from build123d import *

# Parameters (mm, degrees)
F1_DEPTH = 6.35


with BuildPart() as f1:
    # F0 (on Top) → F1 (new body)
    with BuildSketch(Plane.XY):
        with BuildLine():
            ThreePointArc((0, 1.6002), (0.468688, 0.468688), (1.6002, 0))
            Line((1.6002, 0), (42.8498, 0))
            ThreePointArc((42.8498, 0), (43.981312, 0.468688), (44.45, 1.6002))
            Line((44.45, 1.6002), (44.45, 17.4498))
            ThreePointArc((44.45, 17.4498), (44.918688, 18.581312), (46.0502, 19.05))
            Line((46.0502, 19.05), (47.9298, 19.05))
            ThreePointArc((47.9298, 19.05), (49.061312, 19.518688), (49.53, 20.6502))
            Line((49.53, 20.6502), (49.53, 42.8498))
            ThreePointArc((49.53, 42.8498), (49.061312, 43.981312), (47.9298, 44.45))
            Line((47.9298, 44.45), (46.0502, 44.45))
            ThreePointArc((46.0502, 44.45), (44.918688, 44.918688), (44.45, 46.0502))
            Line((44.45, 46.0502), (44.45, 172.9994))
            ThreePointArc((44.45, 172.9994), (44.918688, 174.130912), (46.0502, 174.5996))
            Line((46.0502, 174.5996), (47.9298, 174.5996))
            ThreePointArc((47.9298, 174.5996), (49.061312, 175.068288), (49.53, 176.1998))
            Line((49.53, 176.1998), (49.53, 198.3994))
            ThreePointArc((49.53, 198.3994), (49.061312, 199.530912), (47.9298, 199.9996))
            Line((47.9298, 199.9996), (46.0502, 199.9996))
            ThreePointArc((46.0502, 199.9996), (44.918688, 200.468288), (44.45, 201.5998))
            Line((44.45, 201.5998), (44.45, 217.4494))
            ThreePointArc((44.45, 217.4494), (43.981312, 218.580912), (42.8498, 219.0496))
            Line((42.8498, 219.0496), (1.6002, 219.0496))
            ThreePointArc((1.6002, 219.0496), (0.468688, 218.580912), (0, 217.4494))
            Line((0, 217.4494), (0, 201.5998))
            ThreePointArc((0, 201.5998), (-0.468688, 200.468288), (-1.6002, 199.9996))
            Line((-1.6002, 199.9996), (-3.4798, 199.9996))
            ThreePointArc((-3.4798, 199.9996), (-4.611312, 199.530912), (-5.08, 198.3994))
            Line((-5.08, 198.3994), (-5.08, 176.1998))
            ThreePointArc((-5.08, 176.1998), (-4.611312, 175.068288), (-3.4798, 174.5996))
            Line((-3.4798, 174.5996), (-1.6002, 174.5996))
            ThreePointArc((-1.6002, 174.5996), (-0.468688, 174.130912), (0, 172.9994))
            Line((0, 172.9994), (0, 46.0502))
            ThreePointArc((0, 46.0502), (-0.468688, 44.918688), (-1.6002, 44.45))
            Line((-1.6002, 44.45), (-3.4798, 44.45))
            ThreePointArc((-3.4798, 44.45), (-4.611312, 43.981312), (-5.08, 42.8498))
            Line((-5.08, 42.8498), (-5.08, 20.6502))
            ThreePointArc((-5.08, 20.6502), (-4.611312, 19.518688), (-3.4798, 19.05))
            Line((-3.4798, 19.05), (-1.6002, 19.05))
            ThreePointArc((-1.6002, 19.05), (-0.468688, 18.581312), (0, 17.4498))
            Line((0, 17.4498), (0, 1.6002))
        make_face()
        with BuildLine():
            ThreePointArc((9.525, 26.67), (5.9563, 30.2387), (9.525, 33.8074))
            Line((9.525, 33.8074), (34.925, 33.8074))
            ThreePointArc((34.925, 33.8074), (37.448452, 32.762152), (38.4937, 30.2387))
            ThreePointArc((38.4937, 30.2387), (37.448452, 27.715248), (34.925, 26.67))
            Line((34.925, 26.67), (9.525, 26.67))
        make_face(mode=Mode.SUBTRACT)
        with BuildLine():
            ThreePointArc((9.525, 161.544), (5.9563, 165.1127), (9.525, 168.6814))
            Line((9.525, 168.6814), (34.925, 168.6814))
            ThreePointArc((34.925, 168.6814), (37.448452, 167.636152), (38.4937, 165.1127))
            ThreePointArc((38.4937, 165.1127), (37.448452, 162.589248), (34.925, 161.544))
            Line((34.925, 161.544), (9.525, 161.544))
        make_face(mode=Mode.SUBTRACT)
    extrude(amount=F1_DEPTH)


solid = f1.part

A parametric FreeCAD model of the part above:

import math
import FreeCAD as App
import Part
import Sketcher
from FreeCAD import Vector
Q = App.Units.Quantity

doc = App.newDocument("Part")
body = doc.addObject("PartDesign::Body", "Body")

# Sketch on XY plane
sketch1 = body.newObject("Sketcher::SketchObject", "Sketch")
sketch1.AttachmentSupport = (doc.getObject("XY_Plane"), [""])
sketch1.MapMode = "FlatFace"
sketch1.addGeometry(Part.ArcOfCircle(Part.Circle(Vector(1.6, 1.6, 0), Vector(0, 0, 1), 1.6), math.radians(-180), math.radians(-90)), False)
sketch1.addGeometry(Part.LineSegment(Vector(1.6, 0, 0), Vector(42.8, 0, 0)), False)
sketch1.addGeometry(Part.ArcOfCircle(Part.Circle(Vector(42.8, 1.6, 0), Vector(0, 0, 1), 1.6), math.radians(-90), math.radians(0)), False)
sketch1.addGeometry(Part.LineSegment(Vector(44.5, 1.6, 0), Vector(44.5, 17.4, 0)), False)
sketch1.addGeometry(Part.ArcOfCircle(Part.Circle(Vector(46.1, 17.4, 0), Vector(0, 0, 1), 1.6), math.radians(90), math.radians(180)), False)
sketch1.addGeometry(Part.LineSegment(Vector(46.1, 19.1, 0), Vector(47.9, 19.1, 0)), False)
sketch1.addGeometry(Part.ArcOfCircle(Part.Circle(Vector(47.9, 20.7, 0), Vector(0, 0, 1), 1.6), math.radians(-90), math.radians(0)), False)
sketch1.addGeometry(Part.LineSegment(Vector(49.5, 20.7, 0), Vector(49.5, 42.8, 0)), False)
sketch1.addGeometry(Part.ArcOfCircle(Part.Circle(Vector(47.9, 42.8, 0), Vector(0, 0, 1), 1.6), math.radians(0), math.radians(90)), False)
sketch1.addGeometry(Part.LineSegment(Vector(47.9, 44.5, 0), Vector(46.1, 44.5, 0)), False)
sketch1.addGeometry(Part.ArcOfCircle(Part.Circle(Vector(46.1, 46.1, 0), Vector(0, 0, 1), 1.6), math.radians(-180), math.radians(-90)), False)
sketch1.addGeometry(Part.LineSegment(Vector(44.5, 46.1, 0), Vector(44.5, 173, 0)), False)
sketch1.addGeometry(Part.ArcOfCircle(Part.Circle(Vector(46.1, 173, 0), Vector(0, 0, 1), 1.6), math.radians(90), math.radians(180)), False)
sketch1.addGeometry(Part.LineSegment(Vector(46.1, 174.6, 0), Vector(47.9, 174.6, 0)), False)
sketch1.addGeometry(Part.ArcOfCircle(Part.Circle(Vector(47.9, 176.2, 0), Vector(0, 0, 1), 1.6), math.radians(-90), math.radians(0)), False)
sketch1.addGeometry(Part.LineSegment(Vector(49.5, 176.2, 0), Vector(49.5, 198.4, 0)), False)
sketch1.addGeometry(Part.ArcOfCircle(Part.Circle(Vector(47.9, 198.4, 0), Vector(0, 0, 1), 1.6), math.radians(0), math.radians(90)), False)
sketch1.addGeometry(Part.LineSegment(Vector(47.9, 200, 0), Vector(46.1, 200, 0)), False)
sketch1.addGeometry(Part.ArcOfCircle(Part.Circle(Vector(46.1, 201.6, 0), Vector(0, 0, 1), 1.6), math.radians(-180), math.radians(-90)), False)
sketch1.addGeometry(Part.LineSegment(Vector(44.5, 201.6, 0), Vector(44.5, 217.4, 0)), False)
sketch1.addGeometry(Part.ArcOfCircle(Part.Circle(Vector(42.8, 217.4, 0), Vector(0, 0, 1), 1.6), math.radians(0), math.radians(90)), False)
sketch1.addGeometry(Part.LineSegment(Vector(42.8, 219, 0), Vector(1.6, 219, 0)), False)
sketch1.addGeometry(Part.ArcOfCircle(Part.Circle(Vector(1.6, 217.4, 0), Vector(0, 0, 1), 1.6), math.radians(90), math.radians(180)), False)
sketch1.addGeometry(Part.LineSegment(Vector(0, 217.4, 0), Vector(0, 201.6, 0)), False)
sketch1.addGeometry(Part.ArcOfCircle(Part.Circle(Vector(-1.6, 201.6, 0), Vector(0, 0, 1), 1.6), math.radians(-90), math.radians(0)), False)
sketch1.addGeometry(Part.LineSegment(Vector(-1.6, 200, 0), Vector(-3.5, 200, 0)), False)
sketch1.addGeometry(Part.ArcOfCircle(Part.Circle(Vector(-3.5, 198.4, 0), Vector(0, 0, 1), 1.6), math.radians(90), math.radians(180)), False)
sketch1.addGeometry(Part.LineSegment(Vector(-5.1, 198.4, 0), Vector(-5.1, 176.2, 0)), False)
sketch1.addGeometry(Part.ArcOfCircle(Part.Circle(Vector(-3.5, 176.2, 0), Vector(0, 0, 1), 1.6), math.radians(-180), math.radians(-90)), False)
sketch1.addGeometry(Part.LineSegment(Vector(-3.5, 174.6, 0), Vector(-1.6, 174.6, 0)), False)
sketch1.addGeometry(Part.ArcOfCircle(Part.Circle(Vector(-1.6, 173, 0), Vector(0, 0, 1), 1.6), math.radians(0), math.radians(90)), False)
sketch1.addGeometry(Part.LineSegment(Vector(0, 173, 0), Vector(0, 46.1, 0)), False)
sketch1.addGeometry(Part.ArcOfCircle(Part.Circle(Vector(-1.6, 46.1, 0), Vector(0, 0, 1), 1.6), math.radians(-90), math.radians(0)), False)
sketch1.addGeometry(Part.LineSegment(Vector(-1.6, 44.5, 0), Vector(-3.5, 44.5, 0)), False)
sketch1.addGeometry(Part.ArcOfCircle(Part.Circle(Vector(-3.5, 42.8, 0), Vector(0, 0, 1), 1.6), math.radians(90), math.radians(180)), False)
sketch1.addGeometry(Part.LineSegment(Vector(-5.1, 42.8, 0), Vector(-5.1, 20.7, 0)), False)
sketch1.addGeometry(Part.ArcOfCircle(Part.Circle(Vector(-3.5, 20.7, 0), Vector(0, 0, 1), 1.6), math.radians(-180), math.radians(-90)), False)
sketch1.addGeometry(Part.LineSegment(Vector(-3.5, 19.1, 0), Vector(-1.6, 19.1, 0)), False)
sketch1.addGeometry(Part.ArcOfCircle(Part.Circle(Vector(-1.6, 17.4, 0), Vector(0, 0, 1), 1.6), math.radians(0), math.radians(90)), False)
sketch1.addGeometry(Part.LineSegment(Vector(0, 17.4, 0), Vector(0, 1.6, 0)), False)
sketch1.addGeometry(Part.LineSegment(Vector(34.9, 26.7, 0), Vector(9.5, 26.7, 0)), False)
sketch1.addGeometry(Part.ArcOfCircle(Part.Circle(Vector(9.5, 30.2, 0), Vector(0, 0, 1), 3.6), math.radians(90), math.radians(270)), False)
sketch1.addGeometry(Part.LineSegment(Vector(9.5, 33.8, 0), Vector(34.9, 33.8, 0)), False)
sketch1.addGeometry(Part.ArcOfCircle(Part.Circle(Vector(34.9, 30.2, 0), Vector(0, 0, 1), 3.6), math.radians(0), math.radians(90)), False)
sketch1.addGeometry(Part.ArcOfCircle(Part.Circle(Vector(34.9, 30.2, 0), Vector(0, 0, 1), 3.6), math.radians(-90), math.radians(0)), False)
sketch1.addGeometry(Part.LineSegment(Vector(34.9, 161.5, 0), Vector(9.5, 161.5, 0)), False)
sketch1.addGeometry(Part.ArcOfCircle(Part.Circle(Vector(9.5, 165.1, 0), Vector(0, 0, 1), 3.6), math.radians(90), math.radians(270)), False)
sketch1.addGeometry(Part.LineSegment(Vector(9.5, 168.7, 0), Vector(34.9, 168.7, 0)), False)
sketch1.addGeometry(Part.ArcOfCircle(Part.Circle(Vector(34.9, 165.1, 0), Vector(0, 0, 1), 3.6), math.radians(0), math.radians(90)), False)
sketch1.addGeometry(Part.ArcOfCircle(Part.Circle(Vector(34.9, 165.1, 0), Vector(0, 0, 1), 3.6), math.radians(-90), math.radians(0)), False)
sketch1.addConstraint(Sketcher.Constraint("Tangent", 0, 2, 1, 1))
sketch1.addConstraint(Sketcher.Constraint("Tangent", 1, 2, 2, 1))
sketch1.addConstraint(Sketcher.Constraint("Tangent", 2, 2, 3, 1))
sketch1.addConstraint(Sketcher.Constraint("Tangent", 3, 2, 4, 2))
sketch1.addConstraint(Sketcher.Constraint("Tangent", 4, 1, 5, 1))
sketch1.addConstraint(Sketcher.Constraint("Tangent", 5, 2, 6, 1))
sketch1.addConstraint(Sketcher.Constraint("Tangent", 6, 2, 7, 1))
sketch1.addConstraint(Sketcher.Constraint("Tangent", 7, 2, 8, 1))
sketch1.addConstraint(Sketcher.Constraint("Tangent", 8, 2, 9, 1))
sketch1.addConstraint(Sketcher.Constraint("Tangent", 9, 2, 10, 2))
sketch1.addConstraint(Sketcher.Constraint("Tangent", 10, 1, 11, 1))
sketch1.addConstraint(Sketcher.Constraint("Tangent", 11, 2, 12, 2))
sketch1.addConstraint(Sketcher.Constraint("Tangent", 12, 1, 13, 1))
sketch1.addConstraint(Sketcher.Constraint("Tangent", 13, 2, 14, 1))
sketch1.addConstraint(Sketcher.Constraint("Tangent", 14, 2, 15, 1))
sketch1.addConstraint(Sketcher.Constraint("Tangent", 15, 2, 16, 1))
sketch1.addConstraint(Sketcher.Constraint("Tangent", 16, 2, 17, 1))
sketch1.addConstraint(Sketcher.Constraint("Tangent", 17, 2, 18, 2))
sketch1.addConstraint(Sketcher.Constraint("Tangent", 18, 1, 19, 1))
sketch1.addConstraint(Sketcher.Constraint("Tangent", 19, 2, 20, 1))
sketch1.addConstraint(Sketcher.Constraint("Tangent", 20, 2, 21, 1))
sketch1.addConstraint(Sketcher.Constraint("Tangent", 21, 2, 22, 1))
sketch1.addConstraint(Sketcher.Constraint("Tangent", 22, 2, 23, 1))
sketch1.addConstraint(Sketcher.Constraint("Tangent", 23, 2, 24, 2))
sketch1.addConstraint(Sketcher.Constraint("Tangent", 24, 1, 25, 1))
sketch1.addConstraint(Sketcher.Constraint("Tangent", 25, 2, 26, 1))
sketch1.addConstraint(Sketcher.Constraint("Tangent", 26, 2, 27, 1))
sketch1.addConstraint(Sketcher.Constraint("Tangent", 27, 2, 28, 1))
sketch1.addConstraint(Sketcher.Constraint("Tangent", 28, 2, 29, 1))
sketch1.addConstraint(Sketcher.Constraint("Tangent", 29, 2, 30, 2))
sketch1.addConstraint(Sketcher.Constraint("Tangent", 30, 1, 31, 1))
sketch1.addConstraint(Sketcher.Constraint("Tangent", 31, 2, 32, 2))
sketch1.addConstraint(Sketcher.Constraint("Tangent", 32, 1, 33, 1))
sketch1.addConstraint(Sketcher.Constraint("Tangent", 33, 2, 34, 1))
sketch1.addConstraint(Sketcher.Constraint("Tangent", 34, 2, 35, 1))
sketch1.addConstraint(Sketcher.Constraint("Tangent", 35, 2, 36, 1))
sketch1.addConstraint(Sketcher.Constraint("Tangent", 36, 2, 37, 1))
sketch1.addConstraint(Sketcher.Constraint("Tangent", 37, 2, 38, 2))
sketch1.addConstraint(Sketcher.Constraint("Tangent", 38, 1, 39, 1))
sketch1.addConstraint(Sketcher.Constraint("Tangent", 39, 2, 0, 1))
sketch1.addConstraint(Sketcher.Constraint("Tangent", 40, 2, 41, 2))
sketch1.addConstraint(Sketcher.Constraint("Tangent", 41, 1, 42, 1))
sketch1.addConstraint(Sketcher.Constraint("Tangent", 42, 2, 43, 2))
sketch1.addConstraint(Sketcher.Constraint("Tangent", 43, 1, 44, 2))
sketch1.addConstraint(Sketcher.Constraint("Tangent", 44, 1, 40, 1))
sketch1.addConstraint(Sketcher.Constraint("Tangent", 45, 2, 46, 2))
sketch1.addConstraint(Sketcher.Constraint("Tangent", 46, 1, 47, 1))
sketch1.addConstraint(Sketcher.Constraint("Tangent", 47, 2, 48, 2))
sketch1.addConstraint(Sketcher.Constraint("Tangent", 48, 1, 49, 2))
sketch1.addConstraint(Sketcher.Constraint("Tangent", 49, 1, 45, 1))
sketch1.addConstraint(Sketcher.Constraint("Horizontal", 1))
sketch1.addConstraint(Sketcher.Constraint("Vertical", 3))
sketch1.addConstraint(Sketcher.Constraint("Horizontal", 5))
sketch1.addConstraint(Sketcher.Constraint("Vertical", 7))
sketch1.addConstraint(Sketcher.Constraint("Horizontal", 9))
sketch1.addConstraint(Sketcher.Constraint("Vertical", 11))
sketch1.addConstraint(Sketcher.Constraint("Horizontal", 13))
sketch1.addConstraint(Sketcher.Constraint("Vertical", 15))
sketch1.addConstraint(Sketcher.Constraint("Horizontal", 17))
sketch1.addConstraint(Sketcher.Constraint("Vertical", 19))
sketch1.addConstraint(Sketcher.Constraint("Horizontal", 21))
sketch1.addConstraint(Sketcher.Constraint("Vertical", 23))
sketch1.addConstraint(Sketcher.Constraint("Horizontal", 25))
sketch1.addConstraint(Sketcher.Constraint("Vertical", 27))
sketch1.addConstraint(Sketcher.Constraint("Horizontal", 29))
sketch1.addConstraint(Sketcher.Constraint("Vertical", 31))
sketch1.addConstraint(Sketcher.Constraint("Horizontal", 33))
sketch1.addConstraint(Sketcher.Constraint("Vertical", 35))
sketch1.addConstraint(Sketcher.Constraint("Horizontal", 37))
sketch1.addConstraint(Sketcher.Constraint("Vertical", 39))
sketch1.addConstraint(Sketcher.Constraint("Horizontal", 40))
sketch1.addConstraint(Sketcher.Constraint("Horizontal", 42))
sketch1.addConstraint(Sketcher.Constraint("Horizontal", 45))
sketch1.addConstraint(Sketcher.Constraint("Horizontal", 47))
sketch1.addConstraint(Sketcher.Constraint("Equal", 0, 2))
sketch1.addConstraint(Sketcher.Constraint("Equal", 2, 4))
sketch1.addConstraint(Sketcher.Constraint("Equal", 4, 6))
sketch1.addConstraint(Sketcher.Constraint("Equal", 6, 8))
sketch1.addConstraint(Sketcher.Constraint("Equal", 8, 10))
sketch1.addConstraint(Sketcher.Constraint("Equal", 10, 12))
sketch1.addConstraint(Sketcher.Constraint("Equal", 12, 14))
sketch1.addConstraint(Sketcher.Constraint("Equal", 14, 16))
sketch1.addConstraint(Sketcher.Constraint("Equal", 16, 18))
sketch1.addConstraint(Sketcher.Constraint("Equal", 18, 20))
sketch1.addConstraint(Sketcher.Constraint("Equal", 20, 22))
sketch1.addConstraint(Sketcher.Constraint("Equal", 22, 24))
sketch1.addConstraint(Sketcher.Constraint("Equal", 24, 26))
sketch1.addConstraint(Sketcher.Constraint("Equal", 26, 28))
sketch1.addConstraint(Sketcher.Constraint("Equal", 28, 30))
sketch1.addConstraint(Sketcher.Constraint("Equal", 30, 32))
sketch1.addConstraint(Sketcher.Constraint("Equal", 32, 34))
sketch1.addConstraint(Sketcher.Constraint("Equal", 34, 36))
sketch1.addConstraint(Sketcher.Constraint("Equal", 36, 38))
sketch1.addConstraint(Sketcher.Constraint("Equal", 41, 43))
sketch1.addConstraint(Sketcher.Constraint("Equal", 44, 46))
sketch1.addConstraint(Sketcher.Constraint("Equal", 46, 48))
sketch1.addConstraint(Sketcher.Constraint("PointOnObject", 0, 2, -1))
sketch1.addConstraint(Sketcher.Constraint("PointOnObject", 22, 2, -2))
sketch1.addConstraint(Sketcher.Constraint("PointOnObject", 30, 1, -2))
sketch1.addConstraint(Sketcher.Constraint("PointOnObject", 38, 1, -2))
sketch1.addConstraint(Sketcher.Constraint("Horizontal", 18, 3, 24, 3))
sketch1.addConstraint(Sketcher.Constraint("Horizontal", 14, 3, 28, 3))
sketch1.addConstraint(Sketcher.Constraint("Horizontal", 10, 3, 32, 3))
sketch1.addConstraint(Sketcher.Constraint("Horizontal", 6, 3, 36, 3))
sketch1.addConstraint(Sketcher.Constraint("Horizontal", 44, 3, 43, 1))
sketch1.addConstraint(Sketcher.Constraint("Horizontal", 49, 3, 48, 1))
sketch1.addConstraint(Sketcher.Constraint("Vertical", 4, 3, 10, 3))
sketch1.addConstraint(Sketcher.Constraint("Vertical", 8, 3, 14, 3))
sketch1.addConstraint(Sketcher.Constraint("Vertical", 12, 3, 18, 3))
sketch1.addConstraint(Sketcher.Constraint("Vertical", 28, 3, 34, 3))
sketch1.addConstraint(Sketcher.Constraint("Vertical", 41, 3, 46, 3))
sketch1.addConstraint(Sketcher.Constraint("Vertical", 44, 3, 48, 3))
sketch1.addConstraint(Sketcher.Constraint("Equal", 17, 25))
sketch1.addConstraint(Sketcher.Constraint("Equal", 7, 15))
sketch1.addConstraint(Sketcher.Constraint("Equal", 3, 19))
sketch1.addConstraint(Sketcher.Constraint("DistanceX", 40, 2, 40, 1, Q("1 in")))
sketch1.addConstraint(Sketcher.Constraint("Radius", 0, Q("0.063 in")))
sketch1.addConstraint(Sketcher.Constraint("DistanceX", 26, 2, -1, 1, Q("0.2 in")))
sketch1.addConstraint(Sketcher.Constraint("Radius", 41, Q("0.1405 in")))
sketch1.addConstraint(Sketcher.Constraint("DistanceX", 1, 1, 1, 2, Q("1.624 in")))
sketch1.addConstraint(Sketcher.Constraint("DistanceY", 3, 1, 3, 2, Q("0.624 in")))
sketch1.addConstraint(Sketcher.Constraint("DistanceY", 7, 1, 7, 2, Q("0.874 in")))
sketch1.addConstraint(Sketcher.Constraint("DistanceY", 11, 1, 11, 2, Q("4.998 in")))
sketch1.addConstraint(Sketcher.Constraint("DistanceY", -1, 1, 40, 2, Q("1.05 in")))
sketch1.addConstraint(Sketcher.Constraint("DistanceY", -1, 1, 45, 2, Q("6.36 in")))
sketch1.addConstraint(Sketcher.Constraint("DistanceX", -1, 1, 41, 3, Q("0.375 in")))
pad1 = body.newObject("PartDesign::Pad", "Pad")
pad1.Profile = sketch1
pad1.Length = Q("0.25 in")

doc.recompute()
